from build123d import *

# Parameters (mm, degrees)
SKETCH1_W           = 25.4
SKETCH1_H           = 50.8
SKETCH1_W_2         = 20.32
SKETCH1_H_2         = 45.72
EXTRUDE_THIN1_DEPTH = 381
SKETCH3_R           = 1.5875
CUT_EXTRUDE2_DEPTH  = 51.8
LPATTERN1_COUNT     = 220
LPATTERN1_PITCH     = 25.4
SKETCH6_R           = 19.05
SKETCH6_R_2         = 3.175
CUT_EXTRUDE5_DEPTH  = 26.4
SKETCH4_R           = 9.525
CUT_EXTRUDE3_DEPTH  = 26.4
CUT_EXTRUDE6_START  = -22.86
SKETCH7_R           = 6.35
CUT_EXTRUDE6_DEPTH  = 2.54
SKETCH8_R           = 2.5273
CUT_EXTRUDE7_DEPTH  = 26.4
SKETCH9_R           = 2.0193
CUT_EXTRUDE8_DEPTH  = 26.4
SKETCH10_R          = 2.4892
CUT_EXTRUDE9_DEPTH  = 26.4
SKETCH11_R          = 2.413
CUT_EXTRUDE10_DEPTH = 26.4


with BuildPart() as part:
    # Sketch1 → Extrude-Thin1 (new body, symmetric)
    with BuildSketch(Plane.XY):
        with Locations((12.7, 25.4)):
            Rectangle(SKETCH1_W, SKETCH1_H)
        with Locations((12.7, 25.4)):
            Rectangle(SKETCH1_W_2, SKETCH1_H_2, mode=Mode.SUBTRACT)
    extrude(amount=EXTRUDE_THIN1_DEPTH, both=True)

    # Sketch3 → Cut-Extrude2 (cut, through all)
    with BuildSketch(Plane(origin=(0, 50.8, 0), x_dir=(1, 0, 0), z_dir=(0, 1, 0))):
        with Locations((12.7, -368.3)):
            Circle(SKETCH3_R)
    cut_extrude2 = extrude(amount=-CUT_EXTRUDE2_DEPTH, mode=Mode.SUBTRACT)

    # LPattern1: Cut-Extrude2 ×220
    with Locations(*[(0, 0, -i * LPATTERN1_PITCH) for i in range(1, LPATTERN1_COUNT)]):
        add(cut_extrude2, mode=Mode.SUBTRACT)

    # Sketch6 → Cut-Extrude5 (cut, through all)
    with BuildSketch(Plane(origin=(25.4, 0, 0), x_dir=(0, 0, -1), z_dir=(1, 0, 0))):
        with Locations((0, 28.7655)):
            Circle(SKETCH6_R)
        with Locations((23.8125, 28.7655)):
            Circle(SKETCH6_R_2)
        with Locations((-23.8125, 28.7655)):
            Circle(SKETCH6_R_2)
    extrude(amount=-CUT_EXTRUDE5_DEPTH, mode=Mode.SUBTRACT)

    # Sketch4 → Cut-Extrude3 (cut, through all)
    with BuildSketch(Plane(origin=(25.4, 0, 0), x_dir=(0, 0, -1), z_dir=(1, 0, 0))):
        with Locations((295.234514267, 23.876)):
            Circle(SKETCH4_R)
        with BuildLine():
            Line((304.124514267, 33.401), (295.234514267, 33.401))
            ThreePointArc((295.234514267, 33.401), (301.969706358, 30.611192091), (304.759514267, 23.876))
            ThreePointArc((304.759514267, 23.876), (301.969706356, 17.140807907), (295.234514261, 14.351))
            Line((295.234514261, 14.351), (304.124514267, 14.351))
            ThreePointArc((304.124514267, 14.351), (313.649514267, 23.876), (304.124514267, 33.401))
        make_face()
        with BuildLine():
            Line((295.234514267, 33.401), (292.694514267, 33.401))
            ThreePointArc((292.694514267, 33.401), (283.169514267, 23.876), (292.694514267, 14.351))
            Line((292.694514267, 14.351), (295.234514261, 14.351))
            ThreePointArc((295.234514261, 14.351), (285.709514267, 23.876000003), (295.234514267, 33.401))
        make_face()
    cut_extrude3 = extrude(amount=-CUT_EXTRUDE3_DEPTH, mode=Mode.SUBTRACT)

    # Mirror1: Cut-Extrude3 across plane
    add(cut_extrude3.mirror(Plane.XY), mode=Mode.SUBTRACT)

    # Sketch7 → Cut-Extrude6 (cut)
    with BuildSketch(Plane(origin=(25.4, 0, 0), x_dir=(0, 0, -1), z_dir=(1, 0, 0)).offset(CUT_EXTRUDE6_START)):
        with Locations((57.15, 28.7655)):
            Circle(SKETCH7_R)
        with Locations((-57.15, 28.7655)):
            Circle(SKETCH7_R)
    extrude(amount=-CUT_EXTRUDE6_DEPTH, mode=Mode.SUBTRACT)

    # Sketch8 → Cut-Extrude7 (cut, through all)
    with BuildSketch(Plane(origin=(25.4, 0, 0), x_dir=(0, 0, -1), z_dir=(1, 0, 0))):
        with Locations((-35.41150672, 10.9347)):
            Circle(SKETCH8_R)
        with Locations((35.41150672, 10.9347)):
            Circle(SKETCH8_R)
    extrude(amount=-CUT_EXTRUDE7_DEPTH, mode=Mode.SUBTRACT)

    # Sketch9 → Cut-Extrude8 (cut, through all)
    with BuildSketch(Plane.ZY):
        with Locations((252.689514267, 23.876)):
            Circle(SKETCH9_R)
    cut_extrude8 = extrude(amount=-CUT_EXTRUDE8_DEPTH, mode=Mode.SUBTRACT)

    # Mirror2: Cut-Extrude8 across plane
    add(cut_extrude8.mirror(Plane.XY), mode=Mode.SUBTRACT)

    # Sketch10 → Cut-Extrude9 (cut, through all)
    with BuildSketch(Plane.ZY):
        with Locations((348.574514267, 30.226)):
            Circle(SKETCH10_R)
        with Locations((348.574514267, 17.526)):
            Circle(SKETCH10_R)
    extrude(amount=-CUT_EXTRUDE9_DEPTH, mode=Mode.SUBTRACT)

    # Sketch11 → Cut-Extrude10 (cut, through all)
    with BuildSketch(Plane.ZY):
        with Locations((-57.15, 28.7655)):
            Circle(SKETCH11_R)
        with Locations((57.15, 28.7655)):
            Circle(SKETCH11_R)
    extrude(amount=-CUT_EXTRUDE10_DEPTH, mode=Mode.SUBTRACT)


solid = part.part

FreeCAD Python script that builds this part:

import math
import FreeCAD as App
import Part
import Sketcher

V = App.Vector
Q = App.Units.Quantity

doc = App.newDocument("Part")
params = doc.addObject("Spreadsheet::Sheet", "Params")
for row, (alias, value) in enumerate([
    ("sketch1_width", "1 in"),
    ("sketch1_height", "2 in"),
    ("sketch1_width2", "0.8 in"),
    ("sketch1_height2", "1.8 in"),
    ("pad1_length", "30 in"),
    ("sketch2_diameter", "0.125 in"),
    ("linearpattern_pitch", "1 in"),
    ("sketch3_diameter", "1.5 in"),
    ("sketch3_diameter2", "0.25 in"),
    ("sketch4_radius", "0.375 in"),
    ("sketch4_height", "0.45 in"),
    ("sketch5_diameter", "0.5 in"),
    ("pocket4_length", "0.1 in"),
    ("sketch6_diameter", "0.199 in"),
    ("sketch7_diameter", "0.159 in"),
    ("sketch8_diameter", "0.196 in"),
    ("sketch9_diameter", "0.19 in"),
], start=1):
    params.set(f"A{row}", alias)
    params.set(f"B{row}", "=" + value)
    params.setAlias(f"B{row}", alias)

body = doc.addObject("PartDesign::Body", "Body")

# Sketch on XY plane
sketch1 = body.newObject("Sketcher::SketchObject", "Sketch")
sketch1.AttachmentSupport = (doc.getObject("XY_Plane"), [""])
sketch1.MapMode = "FlatFace"
sketch1.addGeometry([
    Part.LineSegment(V(0, 51, 0), V(0, 0, 0)),  # 0
    Part.LineSegment(V(0, 0, 0), V(25, 0, 0)),  # 1
    Part.LineSegment(V(25, 0, 0), V(25, 51, 0)),  # 2
    Part.LineSegment(V(25, 51, 0), V(0, 51, 0)),  # 3
    Part.LineSegment(V(23, 3, 0), V(3, 3, 0)),  # 4
    Part.LineSegment(V(3, 3, 0), V(3, 48, 0)),  # 5
    Part.LineSegment(V(3, 48, 0), V(23, 48, 0)),  # 6
    Part.LineSegment(V(23, 48, 0), V(23, 3, 0)),  # 7
], False)
sketch1.addConstraint([
    Sketcher.Constraint("Coincident", 0, 2, 1, 1),
    Sketcher.Constraint("Coincident", 1, 2, 2, 1),
    Sketcher.Constraint("Coincident", 2, 2, 3, 1),
    Sketcher.Constraint("Coincident", 3, 2, 0, 1),
    Sketcher.Constraint("Coincident", 4, 2, 5, 1),
    Sketcher.Constraint("Coincident", 5, 2, 6, 1),
    Sketcher.Constraint("Coincident", 6, 2, 7, 1),
    Sketcher.Constraint("Coincident", 7, 2, 4, 1),
    Sketcher.Constraint("Vertical", 0),
    Sketcher.Constraint("Horizontal", 1),
    Sketcher.Constraint("Vertical", 2),
    Sketcher.Constraint("Horizontal", 3),
    Sketcher.Constraint("Horizontal", 4),
    Sketcher.Constraint("Vertical", 5),
    Sketcher.Constraint("Horizontal", 6),
    Sketcher.Constraint("Vertical", 7),
    Sketcher.Constraint("Coincident", 0, 2, -1, 1),
    Sketcher.Constraint("DistanceX", 1, 1, 1, 2, Q("1 in")),
    Sketcher.Constraint("DistanceY", 0, 2, 0, 1, Q("2 in")),
    Sketcher.Constraint("DistanceX", 4, 2, 4, 1, Q("0.8 in")),
    Sketcher.Constraint("DistanceY", 5, 1, 5, 2, Q("1.8 in")),
    Sketcher.Constraint("DistanceX", -1, 1, 4, 2, Q("0.1 in")),
    Sketcher.Constraint("DistanceY", -1, 1, 4, 2, Q("0.1 in")),
])
sketch1.setExpression("Constraints[17]", "Params.sketch1_width")
sketch1.setExpression("Constraints[18]", "Params.sketch1_height")
sketch1.setExpression("Constraints[19]", "Params.sketch1_width2")
sketch1.setExpression("Constraints[20]", "Params.sketch1_height2")
pad1 = body.newObject("PartDesign::Pad", "Pad")
pad1.Profile = sketch1
pad1.setExpression("Length", "Params.pad1_length")
pad1.Midplane = True

# Sketch on XZ plane
sketch2 = body.newObject("Sketcher::SketchObject", "Sketch001")
sketch2.AttachmentSupport = (doc.getObject("XZ_Plane"), [""])
sketch2.MapMode = "FlatFace"
sketch2.AttachmentOffset = App.Placement(V(0, 0, -2 * 25.4), App.Rotation())
sketch2.addGeometry(Part.Circle(V(12.7, 368.3, 0), V(0, 0, 1), 1.6), False)
sketch2.addConstraint([
    Sketcher.Constraint("Diameter", 0, Q("0.125 in")),
    Sketcher.Constraint("DistanceX", -1, 1, 0, 3, Q("0.5 in")),
    Sketcher.Constraint("DistanceY", -1, 1, 0, 3, Q("14.5 in")),
])
sketch2.setExpression("Constraints[0]", "Params.sketch2_diameter")
pocket1 = body.newObject("PartDesign::Pocket", "Pocket")
pocket1.Profile = sketch2
pocket1.Type = "ThroughAll"
pocket1.Reversed = True
doc.recompute()

linearpattern = body.newObject("PartDesign::LinearPattern", "LinearPattern")
linearpattern.Originals = [pocket1]
linearpattern.Direction = (doc.getObject("Z_Axis"), [""])
linearpattern.Mode = "offset"
linearpattern.setExpression("Offset", "Params.linearpattern_pitch")
linearpattern.Occurrences = 220
linearpattern.Reversed = True
body.Tip = linearpattern

# Sketch on YZ plane
sketch3 = body.newObject("Sketcher::SketchObject", "Sketch002")
sketch3.AttachmentSupport = (doc.getObject("YZ_Plane"), [""])
sketch3.MapMode = "FlatFace"
sketch3.AttachmentOffset = App.Placement(V(0, 0, 1 * 25.4), App.Rotation())
sketch3.addGeometry([
    Part.Circle(V(28.8, 0, 0), V(0, 0, 1), 19.1),
    Part.Circle(V(28.8, -23.8, 0), V(0, 0, 1), 3.2),
    Part.Circle(V(28.8, 23.8, 0), V(0, 0, 1), 3.2),
], False)
sketch3.addConstraint([
    Sketcher.Constraint("Equal", 1, 2),
    Sketcher.Constraint("Symmetric", 1, 3, 2, 3, -1),
    Sketcher.Constraint("PointOnObject", 0, 3, -1),
    Sketcher.Constraint("Vertical", 0, 3, 1, 3),
    Sketcher.Constraint("Diameter", 0, Q("1.5 in")),
    Sketcher.Constraint("Diameter", 1, Q("0.25 in")),
    Sketcher.Constraint("DistanceY", 1, 3, -1, 1, Q("0.9375 in")),
    Sketcher.Constraint("DistanceX", -1, 1, 0, 3, Q("1.1325 in")),
])
sketch3.setExpression("Constraints[4]", "Params.sketch3_diameter")
sketch3.setExpression("Constraints[5]", "Params.sketch3_diameter2")
pocket2 = body.newObject("PartDesign::Pocket", "Pocket001")
pocket2.Profile = sketch3
pocket2.Type = "ThroughAll"

# Sketch on YZ plane
sketch4 = body.newObject("Sketcher::SketchObject", "Sketch003")
sketch4.AttachmentSupport = (doc.getObject("YZ_Plane"), [""])
sketch4.MapMode = "FlatFace"
sketch4.AttachmentOffset = App.Placement(V(0, 0, 1 * 25.4), App.Rotation())
sketch4.addGeometry([
    Part.ArcOfCircle(Part.Circle(V(24, -304, 0), V(0, 0, 1), 10), math.radians(180), math.radians(360)),
    Part.LineSegment(V(33, -304, 0), V(33, -293, 0)),
    Part.ArcOfCircle(Part.Circle(V(24, -293, 0), V(0, 0, 1), 10), math.radians(0), math.radians(180)),
    Part.LineSegment(V(14, -293, 0), V(14, -304, 0)),
], False)
sketch4.addConstraint([
    Sketcher.Constraint("Tangent", 0, 2, 1, 1),
    Sketcher.Constraint("Tangent", 1, 2, 2, 1),
    Sketcher.Constraint("Tangent", 2, 2, 3, 1),
    Sketcher.Constraint("Tangent", 3, 2, 0, 1),
    Sketcher.Constraint("Vertical", 1),
    Sketcher.Constraint("Vertical", 3),
    Sketcher.Constraint("Radius", 0, Q("0.375 in")),
    Sketcher.Constraint("DistanceY", 1, 1, 1, 2, Q("0.45 in")),
    Sketcher.Constraint("DistanceX", -1, 1, 0, 3, Q("0.94 in")),
    Sketcher.Constraint("DistanceY", 0, 3, -1, 1, Q("304.124514 mm")),
])
sketch4.setExpression("Constraints[6]", "Params.sketch4_radius")
sketch4.setExpression("Constraints[7]", "Params.sketch4_height")
pocket3 = body.newObject("PartDesign::Pocket", "Pocket002")
pocket3.Profile = sketch4
pocket3.Type = "ThroughAll"
doc.recompute()

mirrored = body.newObject("PartDesign::Mirrored", "Mirrored")
mirrored.Originals = [pocket3]
mirrored.MirrorPlane = (doc.getObject("XY_Plane"), [""])
body.Tip = mirrored

# Sketch on YZ plane
sketch5 = body.newObject("Sketcher::SketchObject", "Sketch004")
sketch5.AttachmentSupport = (doc.getObject("YZ_Plane"), [""])
sketch5.MapMode = "FlatFace"
sketch5.AttachmentOffset = App.Placement(V(0, 0, 0.1 * 25.4), App.Rotation())
sketch5.addGeometry([
    Part.Circle(V(29, -57, 0), V(0, 0, 1), 6),
    Part.Circle(V(29, 57, 0), V(0, 0, 1), 6),
], False)
sketch5.addConstraint([
    Sketcher.Constraint("Equal", 0, 1),
    Sketcher.Constraint("Symmetric", 0, 3, 1, 3, -1),
    Sketcher.Constraint("Diameter", 0, Q("0.5 in")),
    Sketcher.Constraint("DistanceY", 0, 3, 1, 3, Q("4.5 in")),
    Sketcher.Constraint("DistanceX", -1, 1, 0, 3, Q("1.1325 in")),
])
sketch5.setExpression("Constraints[2]", "Params.sketch5_diameter")
pocket4 = body.newObject("PartDesign::Pocket", "Pocket003")
pocket4.Profile = sketch5
pocket4.setExpression("Length", "Params.pocket4_length")

# Sketch on YZ plane
sketch6 = body.newObject("Sketcher::SketchObject", "Sketch005")
sketch6.AttachmentSupport = (doc.getObject("YZ_Plane"), [""])
sketch6.MapMode = "FlatFace"
sketch6.AttachmentOffset = App.Placement(V(0, 0, 1 * 25.4), App.Rotation())
sketch6.addGeometry([
    Part.Circle(V(10.9, 35.4, 0), V(0, 0, 1), 2.5),
    Part.Circle(V(10.9, -35.4, 0), V(0, 0, 1), 2.5),
], False)
sketch6.addConstraint([
    Sketcher.Constraint("Equal", 0, 1),
    Sketcher.Constraint("Symmetric", 0, 3, 1, 3, -1),
    Sketcher.Constraint("Diameter", 0, Q("0.199 in")),
    Sketcher.Constraint("DistanceX", -1, 1, 0, 3, Q("0.4305 in")),
    Sketcher.Constraint("DistanceY", -1, 1, 0, 3, Q("35.411507 mm")),
])
sketch6.setExpression("Constraints[2]", "Params.sketch6_diameter")
pocket5 = body.newObject("PartDesign::Pocket", "Pocket004")
pocket5.Profile = sketch6
pocket5.Type = "ThroughAll"

# Sketch on YZ plane
sketch7 = body.newObject("Sketcher::SketchObject", "Sketch006")
sketch7.AttachmentSupport = (doc.getObject("YZ_Plane"), [""])
sketch7.MapMode = "FlatFace"
sketch7.addGeometry(Part.Circle(V(23.9, 252.7, 0), V(0, 0, 1), 2), False)
sketch7.addConstraint([
    Sketcher.Constraint("Diameter", 0, Q("0.159 in")),
    Sketcher.Constraint("DistanceX", -1, 1, 0, 3, Q("0.94 in")),
    Sketcher.Constraint("DistanceY", -1, 1, 0, 3, Q("252.689514 mm")),
])
sketch7.setExpression("Constraints[0]", "Params.sketch7_diameter")
pocket6 = body.newObject("PartDesign::Pocket", "Pocket005")
pocket6.Profile = sketch7
pocket6.Type = "ThroughAll"
pocket6.Reversed = True
doc.recompute()

mirrored2 = body.newObject("PartDesign::Mirrored", "Mirrored001")
mirrored2.Originals = [pocket6]
mirrored2.MirrorPlane = (doc.getObject("XY_Plane"), [""])
body.Tip = mirrored2

# Sketch on YZ plane
sketch8 = body.newObject("Sketcher::SketchObject", "Sketch007")
sketch8.AttachmentSupport = (doc.getObject("YZ_Plane"), [""])
sketch8.MapMode = "FlatFace"
sketch8.addGeometry([
    Part.Circle(V(30.2, 348.6, 0), V(0, 0, 1), 2.5),
    Part.Circle(V(17.5, 348.6, 0), V(0, 0, 1), 2.5),
], False)
sketch8.addConstraint([
    Sketcher.Constraint("Equal", 0, 1),
    Sketcher.Constraint("Horizontal", 0, 3, 1, 3),
    Sketcher.Constraint("Diameter", 0, Q("0.196 in")),
    Sketcher.Constraint("DistanceX", 1, 3, 0, 3, Q("0.5 in")),
    Sketcher.Constraint("DistanceX", -1, 1, 0, 3, Q("1.19 in")),
    Sketcher.Constraint("DistanceY", -1, 1, 0, 3, Q("348.574514 mm")),
])
sketch8.setExpression("Constraints[2]", "Params.sketch8_diameter")
pocket7 = body.newObject("PartDesign::Pocket", "Pocket006")
pocket7.Profile = sketch8
pocket7.Type = "ThroughAll"
pocket7.Reversed = True

# Sketch on YZ plane
sketch9 = body.newObject("Sketcher::SketchObject", "Sketch008")
sketch9.AttachmentSupport = (doc.getObject("YZ_Plane"), [""])
sketch9.MapMode = "FlatFace"
sketch9.addGeometry([
    Part.Circle(V(28.8, -57.1, 0), V(0, 0, 1), 2.4),
    Part.Circle(V(28.8, 57.1, 0), V(0, 0, 1), 2.4),
], False)
sketch9.addConstraint([
    Sketcher.Constraint("Equal", 0, 1),
    Sketcher.Constraint("Symmetric", 0, 3, 1, 3, -1),
    Sketcher.Constraint("Diameter", 0, Q("0.19 in")),
    Sketcher.Constraint("DistanceY", 0, 3, 1, 3, Q("4.5 in")),
    Sketcher.Constraint("DistanceX", -1, 1, 0, 3, Q("1.1325 in")),
])
sketch9.setExpression("Constraints[2]", "Params.sketch9_diameter")
pocket8 = body.newObject("PartDesign::Pocket", "Pocket007")
pocket8.Profile = sketch9
pocket8.Type = "ThroughAll"
pocket8.Reversed = True

doc.recompute()
